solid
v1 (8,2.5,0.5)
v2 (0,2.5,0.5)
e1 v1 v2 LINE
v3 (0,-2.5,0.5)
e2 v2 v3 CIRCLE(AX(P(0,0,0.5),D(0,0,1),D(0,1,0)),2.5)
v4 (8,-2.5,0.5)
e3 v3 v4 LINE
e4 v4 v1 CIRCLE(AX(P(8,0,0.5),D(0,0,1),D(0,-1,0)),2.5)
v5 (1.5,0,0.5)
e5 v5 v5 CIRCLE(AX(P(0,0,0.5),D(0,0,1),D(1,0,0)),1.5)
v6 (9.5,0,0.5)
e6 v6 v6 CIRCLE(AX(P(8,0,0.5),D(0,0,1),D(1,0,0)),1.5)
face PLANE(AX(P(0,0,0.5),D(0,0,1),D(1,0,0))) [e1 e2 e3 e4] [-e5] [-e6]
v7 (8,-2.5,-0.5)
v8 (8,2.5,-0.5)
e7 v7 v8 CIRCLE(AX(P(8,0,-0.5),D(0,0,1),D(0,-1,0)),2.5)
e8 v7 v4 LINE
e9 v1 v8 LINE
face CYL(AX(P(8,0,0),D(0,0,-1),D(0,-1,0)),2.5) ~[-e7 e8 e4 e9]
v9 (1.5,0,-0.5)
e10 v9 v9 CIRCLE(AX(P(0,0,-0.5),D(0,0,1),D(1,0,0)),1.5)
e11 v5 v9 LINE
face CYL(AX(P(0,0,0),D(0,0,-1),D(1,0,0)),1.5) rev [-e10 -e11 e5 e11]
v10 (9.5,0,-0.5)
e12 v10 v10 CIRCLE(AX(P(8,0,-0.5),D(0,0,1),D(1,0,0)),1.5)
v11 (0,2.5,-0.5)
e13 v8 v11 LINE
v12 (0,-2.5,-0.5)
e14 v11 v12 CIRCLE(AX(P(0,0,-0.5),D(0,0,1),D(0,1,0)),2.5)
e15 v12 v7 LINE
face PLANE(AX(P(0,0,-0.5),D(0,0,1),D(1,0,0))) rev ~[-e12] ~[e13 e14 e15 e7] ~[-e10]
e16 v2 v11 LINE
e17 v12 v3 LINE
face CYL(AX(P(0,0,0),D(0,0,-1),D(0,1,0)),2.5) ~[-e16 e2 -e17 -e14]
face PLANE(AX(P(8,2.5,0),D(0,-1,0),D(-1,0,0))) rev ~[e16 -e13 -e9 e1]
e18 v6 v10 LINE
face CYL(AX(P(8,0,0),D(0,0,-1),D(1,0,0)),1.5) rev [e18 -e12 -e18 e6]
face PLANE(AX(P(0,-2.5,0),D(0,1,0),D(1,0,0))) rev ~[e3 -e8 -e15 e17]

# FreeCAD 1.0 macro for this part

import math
import FreeCAD as App
import Part
import Sketcher

V = App.Vector

doc = App.newDocument("Part")
body = doc.addObject("PartDesign::Body", "Body")

# Sketch on XY plane
sketch1 = body.newObject("Sketcher::SketchObject", "Sketch")
sketch1.AttachmentSupport = (doc.getObject("XY_Plane"), [""])
sketch1.MapMode = "FlatFace"
sketch1.addGeometry([
    Part.ArcOfCircle(Part.Circle(V(0, 0, 0), V(0, 0, 1), 2.5), math.radians(90), math.radians(270)),  # 0
    Part.LineSegment(V(0, -2.5, 0), V(8, -2.5, 0)),  # 1
    Part.ArcOfCircle(Part.Circle(V(8, 0, 0), V(0, 0, 1), 2.5), math.radians(-90), math.radians(90)),  # 2
    Part.LineSegment(V(8, 2.5, 0), V(0, 2.5, 0)),  # 3
    Part.Circle(V(0, 0, 0), V(0, 0, 1), 1.5),  # 4
    Part.Circle(V(8, 0, 0), V(0, 0, 1), 1.5),  # 5
], False)
sketch1.addConstraint([
    Sketcher.Constraint("Tangent", 0, 2, 1, 1),
    Sketcher.Constraint("Tangent", 1, 2, 2, 1),
    Sketcher.Constraint("Tangent", 2, 2, 3, 1),
    Sketcher.Constraint("Tangent", 3, 2, 0, 1),
    Sketcher.Constraint("Horizontal", 1),
    Sketcher.Constraint("Horizontal", 3),
    Sketcher.Constraint("Coincident", 0, 3, -1, 1),
    Sketcher.Constraint("Coincident", 4, 3, -1, 1),
    Sketcher.Constraint("Coincident", 5, 3, 2, 3),
    Sketcher.Constraint("Equal", 4, 5),
    Sketcher.Constraint("Diameter", 4, 3.0),
    Sketcher.Constraint("Radius", 0, 2.5),
    Sketcher.Constraint("DistanceX", 1, 1, 1, 2, 8.0),
])
pad1 = body.newObject("PartDesign::Pad", "Pad")
pad1.Profile = sketch1
pad1.Length = 1
pad1.Midplane = True

doc.recompute()
